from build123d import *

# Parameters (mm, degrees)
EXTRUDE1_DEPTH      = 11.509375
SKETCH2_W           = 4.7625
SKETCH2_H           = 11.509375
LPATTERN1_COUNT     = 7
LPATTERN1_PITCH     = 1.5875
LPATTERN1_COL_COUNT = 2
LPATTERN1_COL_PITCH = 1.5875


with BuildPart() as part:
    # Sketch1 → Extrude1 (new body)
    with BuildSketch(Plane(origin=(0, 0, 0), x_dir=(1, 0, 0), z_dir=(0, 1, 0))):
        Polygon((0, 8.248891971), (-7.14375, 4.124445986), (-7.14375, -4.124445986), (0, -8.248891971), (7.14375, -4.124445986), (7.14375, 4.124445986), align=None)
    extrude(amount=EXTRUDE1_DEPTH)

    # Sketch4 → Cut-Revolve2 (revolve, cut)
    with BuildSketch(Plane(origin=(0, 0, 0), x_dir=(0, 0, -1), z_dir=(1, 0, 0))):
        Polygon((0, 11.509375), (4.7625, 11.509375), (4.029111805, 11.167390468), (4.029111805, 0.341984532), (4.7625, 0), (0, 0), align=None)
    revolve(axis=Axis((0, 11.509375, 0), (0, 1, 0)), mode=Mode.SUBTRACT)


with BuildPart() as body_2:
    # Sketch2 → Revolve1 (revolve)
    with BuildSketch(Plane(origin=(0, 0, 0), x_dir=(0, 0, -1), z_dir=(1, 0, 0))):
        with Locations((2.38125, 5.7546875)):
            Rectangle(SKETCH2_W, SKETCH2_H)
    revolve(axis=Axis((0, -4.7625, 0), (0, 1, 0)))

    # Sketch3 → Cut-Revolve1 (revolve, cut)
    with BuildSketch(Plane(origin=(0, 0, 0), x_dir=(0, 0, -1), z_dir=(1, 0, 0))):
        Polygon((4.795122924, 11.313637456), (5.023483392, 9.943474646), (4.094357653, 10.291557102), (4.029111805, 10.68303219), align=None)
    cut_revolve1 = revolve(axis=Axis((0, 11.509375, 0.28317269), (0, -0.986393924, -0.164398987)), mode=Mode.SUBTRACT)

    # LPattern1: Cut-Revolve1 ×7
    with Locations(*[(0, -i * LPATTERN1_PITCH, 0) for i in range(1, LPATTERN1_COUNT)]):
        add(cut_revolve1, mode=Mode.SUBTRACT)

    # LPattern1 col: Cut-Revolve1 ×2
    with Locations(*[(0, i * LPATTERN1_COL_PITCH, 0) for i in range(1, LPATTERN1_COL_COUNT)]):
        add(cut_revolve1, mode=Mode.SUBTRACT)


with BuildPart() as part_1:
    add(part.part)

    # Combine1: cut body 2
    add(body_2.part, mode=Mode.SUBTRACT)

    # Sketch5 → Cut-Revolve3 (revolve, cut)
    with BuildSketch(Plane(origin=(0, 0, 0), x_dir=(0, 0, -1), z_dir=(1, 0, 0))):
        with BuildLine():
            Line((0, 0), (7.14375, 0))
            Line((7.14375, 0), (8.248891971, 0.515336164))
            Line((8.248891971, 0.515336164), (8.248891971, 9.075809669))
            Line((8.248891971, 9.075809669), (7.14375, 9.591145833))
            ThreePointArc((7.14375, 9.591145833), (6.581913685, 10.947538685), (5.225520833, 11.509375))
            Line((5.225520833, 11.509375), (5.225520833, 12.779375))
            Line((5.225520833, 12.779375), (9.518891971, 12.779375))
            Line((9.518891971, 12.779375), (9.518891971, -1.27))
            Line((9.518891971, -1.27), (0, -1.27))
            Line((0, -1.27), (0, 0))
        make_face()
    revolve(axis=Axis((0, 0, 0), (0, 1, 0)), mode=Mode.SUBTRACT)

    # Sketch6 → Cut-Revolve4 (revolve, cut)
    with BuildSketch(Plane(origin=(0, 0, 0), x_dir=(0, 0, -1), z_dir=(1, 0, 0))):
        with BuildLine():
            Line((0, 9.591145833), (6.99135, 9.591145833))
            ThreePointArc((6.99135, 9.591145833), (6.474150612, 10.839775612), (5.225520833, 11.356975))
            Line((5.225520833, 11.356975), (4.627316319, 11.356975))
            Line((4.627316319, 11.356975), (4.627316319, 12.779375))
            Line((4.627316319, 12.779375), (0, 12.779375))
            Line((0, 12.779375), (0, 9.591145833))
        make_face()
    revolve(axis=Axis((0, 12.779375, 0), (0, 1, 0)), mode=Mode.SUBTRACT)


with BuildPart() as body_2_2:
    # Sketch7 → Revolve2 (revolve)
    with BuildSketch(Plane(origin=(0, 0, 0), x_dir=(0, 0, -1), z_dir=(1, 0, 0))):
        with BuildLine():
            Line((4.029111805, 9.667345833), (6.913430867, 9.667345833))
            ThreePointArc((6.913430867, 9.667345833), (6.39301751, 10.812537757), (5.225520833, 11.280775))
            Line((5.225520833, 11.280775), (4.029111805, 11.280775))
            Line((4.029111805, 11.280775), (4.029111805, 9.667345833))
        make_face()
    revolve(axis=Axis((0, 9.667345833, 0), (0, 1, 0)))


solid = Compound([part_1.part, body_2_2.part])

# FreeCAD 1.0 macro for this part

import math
import FreeCAD as App
import Part
import Sketcher

V = App.Vector
Q = App.Units.Quantity


def add_polygon(sketch, points):
    """Adds a closed chain of lines whose ends are joined by coincident constraints."""
    first, n = sketch.GeometryCount, len(points)
    for a, b in zip(points, points[1:] + points[:1]):
        sketch.addGeometry(Part.LineSegment(App.Vector(*a, 0), App.Vector(*b, 0)), False)
    for i in range(n):
        sketch.addConstraint(Sketcher.Constraint("Coincident", first + i, 2, first + (i + 1) % n, 1))

doc = App.newDocument("Part")
body = doc.addObject("PartDesign::Body", "Body")

# Sketch on XZ plane
sketch1 = body.newObject("Sketcher::SketchObject", "Sketch")
sketch1.AttachmentSupport = (doc.getObject("XZ_Plane"), [""])
sketch1.MapMode = "FlatFace"
add_polygon(sketch1, [(0, -8.248892), (-7.14375, -4.124446), (-7.14375, 4.124446), (0, 8.248892), (7.14375, 4.124446), (7.14375, -4.124446)])  # lines 0-5
sketch1.addConstraint([
    Sketcher.Constraint("Vertical", 1),
    Sketcher.Constraint("Vertical", 4),
    Sketcher.Constraint("Symmetric", 0, 2, 3, 2, -1, 1),
    Sketcher.Constraint("Symmetric", 2, 2, 5, 2, -1, 1),
    Sketcher.Constraint("PointOnObject", 2, 2, -2),
    Sketcher.Constraint("Parallel", 2, 5),
    Sketcher.Constraint("Horizontal", 1, 2, 3, 2),
    Sketcher.Constraint("Angle", 0, Q("150 deg")),
    Sketcher.Constraint("DistanceX", 0, 2, -1, 1, Q("0.28125 in")),
    Sketcher.Constraint("DistanceY", 1, 1, 1, 2, 8.248892),
])
pad1 = body.newObject("PartDesign::Pad", "Pad")
pad1.Profile = sketch1
pad1.Length = Q("0.453125 in")
pad1.Reversed = True

# Sketch on YZ plane
sketch2 = body.newObject("Sketcher::SketchObject", "Sketch001")
sketch2.AttachmentSupport = (doc.getObject("YZ_Plane"), [""])
sketch2.MapMode = "FlatFace"
add_polygon(sketch2, [(11.509375, -4.7625), (11.509375, 0), (0, 0), (0, -4.7625), (0.341985, -4.029112), (11.16739, -4.029112)])  # lines 0-5
sketch2.addConstraint([
    Sketcher.Constraint("Vertical", 0),
    Sketcher.Constraint("Horizontal", 1),
    Sketcher.Constraint("Vertical", 2),
    Sketcher.Constraint("Horizontal", 4),
    Sketcher.Constraint("Coincident", 1, 2, -1, 1),
    Sketcher.Constraint("Horizontal", 2, 2, 5, 2),
    Sketcher.Constraint("Equal", 3, 5),
    Sketcher.Constraint("Angle", 3, Q("65 deg")),
    Sketcher.Constraint("DistanceX", 1, 2, 1, 1, Q("0.453125 in")),
    Sketcher.Constraint("DistanceY", 0, 1, 0, 2, Q("0.1875 in")),
    Sketcher.Constraint("DistanceX", 4, 1, 4, 2, 10.825406),
])
groove = body.newObject("PartDesign::Groove", "Groove")
groove.Profile = sketch2
groove.ReferenceAxis = (sketch2, ["H_Axis"])
groove.Angle = 360
body2 = doc.addObject("PartDesign::Body", "Body001")

# Sketch on YZ plane
sketch3 = body2.newObject("Sketcher::SketchObject", "Sketch002")
sketch3.AttachmentSupport = (doc.getObject("YZ_Plane001"), [""])
sketch3.MapMode = "FlatFace"
add_polygon(sketch3, [(11.509375, 0), (0, 0), (0, -4.7625), (11.509375, -4.7625)])  # lines 0-3
sketch3.addConstraint([
    Sketcher.Constraint("Horizontal", 0),
    Sketcher.Constraint("Vertical", 1),
    Sketcher.Constraint("Horizontal", 2),
    Sketcher.Constraint("Vertical", 3),
    Sketcher.Constraint("Coincident", 0, 2, -1, 1),
    Sketcher.Constraint("DistanceX", 0, 2, 0, 1, Q("0.453125 in")),
    Sketcher.Constraint("DistanceY", 1, 2, 1, 1, Q("0.1875 in")),
])
revolution = body2.newObject("PartDesign::Revolution", "Revolution")
revolution.Profile = sketch3
revolution.ReferenceAxis = (sketch3, ["H_Axis"])
revolution.Angle = 360

# Sketch on YZ plane
sketch4 = body2.newObject("Sketcher::SketchObject", "Sketch003")
sketch4.AttachmentSupport = (doc.getObject("YZ_Plane001"), [""])
sketch4.MapMode = "FlatFace"
add_polygon(sketch4, [(9.943475, -5.023483), (11.313637, -4.795123), (10.683032, -4.029112), (10.291557, -4.094358)])  # lines 0-3
sketch4.addGeometry(Part.LineSegment(V(10.49542, 0.11418, 0), V(9.125257, -0.11418, 0)), True)  # axis
sketch4.addConstraint([
    Sketcher.Constraint("Parallel", 0, 2),
    Sketcher.Constraint("Parallel", 2, 4),
    Sketcher.Constraint("Equal", 1, 3),
    Sketcher.Constraint("Equal", 0, 4),
    Sketcher.Constraint("Distance", 2, Q("0.015625 in")),
    Sketcher.Constraint("DistanceY", 2, 2, 4, 2, Q("0.1566999 in")),
    Sketcher.Constraint("DistanceX", 4, 2, 2, 2, 1.1663),
    Sketcher.Constraint("DistanceY", 1, 2, -1, 1, 4.029112),
    Sketcher.Constraint("DistanceX", -1, 1, 4, 1, 10.49542),
    Sketcher.Constraint("DistanceY", -1, 1, 4, 1, 0.11418),
    Sketcher.Constraint("DistanceY", 4, 2, -1, 1, 0.11418),
    Sketcher.Constraint("DistanceY", 0, 2, 1, 2, 0.766011),
])
groove2 = body2.newObject("PartDesign::Groove", "Groove001")
groove2.Profile = sketch4
groove2.ReferenceAxis = (sketch4, ["Axis0"])
groove2.Angle = 360
doc.recompute()

linearpattern = body2.newObject("PartDesign::LinearPattern", "LinearPattern")
linearpattern.Originals = [groove2]
linearpattern.Direction = (doc.getObject("Y_Axis001"), [""])
linearpattern.Mode = "offset"
linearpattern.Offset = Q("0.0625 in")
linearpattern.Occurrences = 7
linearpattern.Reversed = True
body2.Tip = linearpattern
doc.recompute()

linearpattern2 = body2.newObject("PartDesign::LinearPattern", "LinearPattern001")
linearpattern2.Originals = [groove2]
linearpattern2.Direction = (doc.getObject("Y_Axis001"), [""])
linearpattern2.Mode = "offset"
linearpattern2.Offset = Q("0.0625 in")
linearpattern2.Occurrences = 2
body2.Tip = linearpattern2
doc.recompute()

boolean = body.newObject("PartDesign::Boolean", "Boolean")
boolean.Type = "Cut"
boolean.addObjects([body2])

# Sketch on YZ plane
sketch5 = body.newObject("Sketcher::SketchObject", "Sketch004")
sketch5.AttachmentSupport = (doc.getObject("YZ_Plane"), [""])
sketch5.MapMode = "FlatFace"
sketch5.addGeometry([
    Part.LineSegment(V(0, -7.14375, 0), V(0, 0, 0)),  # 0
    Part.LineSegment(V(0, 0, 0), V(-1.27, 0, 0)),  # 1
    Part.LineSegment(V(-1.27, 0, 0), V(-1.27, -9.518892, 0)),  # 2
    Part.LineSegment(V(-1.27, -9.518892, 0), V(12.779375, -9.518892, 0)),  # 3
    Part.LineSegment(V(12.779375, -9.518892, 0), V(12.779375, -5.225521, 0)),  # 4
    Part.LineSegment(V(12.779375, -5.225521, 0), V(11.509375, -5.225521, 0)),  # 5
    Part.ArcOfCircle(Part.Circle(V(9.591146, -5.225521, 0), V(0, 0, 1), 1.918229), math.radians(-90), math.radians(0)),  # 6
    Part.LineSegment(V(9.591146, -7.14375, 0), V(9.07581, -8.248892, 0)),  # 7
    Part.LineSegment(V(9.07581, -8.248892, 0), V(0.515336, -8.248892, 0)),  # 8
    Part.LineSegment(V(0.515336, -8.248892, 0), V(0, -7.14375, 0)),  # 9
], False)
sketch5.addConstraint([
    Sketcher.Constraint("Coincident", 0, 2, 1, 1),
    Sketcher.Constraint("Coincident", 1, 2, 2, 1),
    Sketcher.Constraint("Coincident", 2, 2, 3, 1),
    Sketcher.Constraint("Coincident", 3, 2, 4, 1),
    Sketcher.Constraint("Coincident", 4, 2, 5, 1),
    Sketcher.Constraint("Coincident", 5, 2, 6, 2),
    Sketcher.Constraint("Coincident", 6, 1, 7, 1),
    Sketcher.Constraint("Coincident", 7, 2, 8, 1),
    Sketcher.Constraint("Coincident", 8, 2, 9, 1),
    Sketcher.Constraint("Coincident", 9, 2, 0, 1),
    Sketcher.Constraint("Vertical", 0),
    Sketcher.Constraint("Horizontal", 1),
    Sketcher.Constraint("Vertical", 2),
    Sketcher.Constraint("Horizontal", 3),
    Sketcher.Constraint("Vertical", 4),
    Sketcher.Constraint("Horizontal", 5),
    Sketcher.Constraint("Horizontal", 8),
    Sketcher.Constraint("Coincident", 0, 2, -1, 1),
    Sketcher.Constraint("Horizontal", 6, 3, 4, 2),
    Sketcher.Constraint("Horizontal", 6, 1, 9, 2),
    Sketcher.Constraint("Equal", 1, 5),
    Sketcher.Constraint("Equal", 7, 9),
    Sketcher.Constraint("Angle", 7, Q("-115 deg")),
    Sketcher.Constraint("DistanceX", 1, 2, 1, 1, Q("0.05 in")),
    Sketcher.Constraint("DistanceY", 0, 1, 0, 2, Q("0.28125 in")),
    Sketcher.Constraint("DistanceY", 3, 2, 7, 2, Q("0.05 in")),
    Sketcher.Constraint("DistanceX", -1, 1, 5, 2, Q("0.453125 in")),
    Sketcher.Constraint("Radius", 6, 1.918229),
    Sketcher.Constraint("DistanceY", 2, 2, 2, 1, 9.518892),
    Sketcher.Constraint("DistanceX", 8, 2, 8, 1, 8.560474),
])
groove3 = body.newObject("PartDesign::Groove", "Groove002")
groove3.Profile = sketch5
groove3.ReferenceAxis = (sketch5, ["H_Axis"])
groove3.Angle = 360

# Sketch on YZ plane
sketch6 = body.newObject("Sketcher::SketchObject", "Sketch005")
sketch6.AttachmentSupport = (doc.getObject("YZ_Plane"), [""])
sketch6.MapMode = "FlatFace"
sketch6.addGeometry([
    Part.LineSegment(V(9.591146, 0, 0), V(9.591146, -6.99135, 0)),  # 0
    Part.ArcOfCircle(Part.Circle(V(9.591146, -5.225521, 0), V(0, 0, 1), 1.765829), math.radians(-90), math.radians(0)),  # 1
    Part.LineSegment(V(11.356975, -5.225521, 0), V(11.356975, -4.627316, 0)),  # 2
    Part.LineSegment(V(11.356975, -4.627316, 0), V(12.779375, -4.627316, 0)),  # 3
    Part.LineSegment(V(12.779375, -4.627316, 0), V(12.779375, 0, 0)),  # 4
    Part.LineSegment(V(12.779375, 0, 0), V(9.591146, 0, 0)),  # 5
], False)
sketch6.addConstraint([
    Sketcher.Constraint("Coincident", 0, 2, 1, 1),
    Sketcher.Constraint("Tangent", 1, 2, 2, 1),
    Sketcher.Constraint("Coincident", 2, 2, 3, 1),
    Sketcher.Constraint("Coincident", 3, 2, 4, 1),
    Sketcher.Constraint("Coincident", 4, 2, 5, 1),
    Sketcher.Constraint("Coincident", 5, 2, 0, 1),
    Sketcher.Constraint("Vertical", 0),
    Sketcher.Constraint("Vertical", 2),
    Sketcher.Constraint("Horizontal", 3),
    Sketcher.Constraint("Vertical", 4),
    Sketcher.Constraint("Horizontal", 5),
    Sketcher.Constraint("PointOnObject", 4, 2, -1),
    Sketcher.Constraint("Vertical", 1, 3, 0, 2),
    Sketcher.Constraint("DistanceX", 3, 1, 3, 2, Q("0.056 in")),
    Sketcher.Constraint("Radius", 1, 1.765829),
    Sketcher.Constraint("DistanceY", 0, 2, 0, 1, 6.99135),
    Sketcher.Constraint("DistanceY", 2, 1, 2, 2, 0.598205),
    Sketcher.Constraint("DistanceX", -1, 1, 1, 3, 9.591146),
])
groove4 = body.newObject("PartDesign::Groove", "Groove003")
groove4.Profile = sketch6
groove4.ReferenceAxis = (sketch6, ["H_Axis"])
groove4.Angle = 360
body3 = doc.addObject("PartDesign::Body", "Body002")

# Sketch on YZ plane
sketch7 = body3.newObject("Sketcher::SketchObject", "Sketch006")
sketch7.AttachmentSupport = (doc.getObject("YZ_Plane002"), [""])
sketch7.MapMode = "FlatFace"
sketch7.addGeometry([
    Part.LineSegment(V(9.667346, -4.029112, 0), V(9.667346, -6.913431, 0)),
    Part.ArcOfCircle(Part.Circle(V(9.591146, -5.225521, 0), V(0, 0, 1), 1.689629), math.radians(-87.415161), math.radians(0)),
    Part.LineSegment(V(11.280775, -5.225521, 0), V(11.280775, -4.029112, 0)),
    Part.LineSegment(V(11.280775, -4.029112, 0), V(9.667346, -4.029112, 0)),
], False)
sketch7.addConstraint([
    Sketcher.Constraint("Coincident", 0, 2, 1, 1),
    Sketcher.Constraint("Tangent", 1, 2, 2, 1),
    Sketcher.Constraint("Coincident", 2, 2, 3, 1),
    Sketcher.Constraint("Coincident", 3, 2, 0, 1),
    Sketcher.Constraint("Vertical", 0),
    Sketcher.Constraint("Vertical", 2),
    Sketcher.Constraint("Horizontal", 3),
    Sketcher.Constraint("Radius", 1, 1.689629),
    Sketcher.Constraint("DistanceX", 1, 3, 0, 2, Q("0.003 in")),
    Sketcher.Constraint("DistanceY", 0, 2, 0, 1, 2.884319),
    Sketcher.Constraint("DistanceY", 1, 3, -1, 1, 5.225521),
    Sketcher.Constraint("DistanceX", -1, 1, 1, 3, 9.591146),
])
revolution2 = body3.newObject("PartDesign::Revolution", "Revolution001")
revolution2.Profile = sketch7
revolution2.ReferenceAxis = (sketch7, ["H_Axis"])
revolution2.Angle = 360

doc.recompute()
